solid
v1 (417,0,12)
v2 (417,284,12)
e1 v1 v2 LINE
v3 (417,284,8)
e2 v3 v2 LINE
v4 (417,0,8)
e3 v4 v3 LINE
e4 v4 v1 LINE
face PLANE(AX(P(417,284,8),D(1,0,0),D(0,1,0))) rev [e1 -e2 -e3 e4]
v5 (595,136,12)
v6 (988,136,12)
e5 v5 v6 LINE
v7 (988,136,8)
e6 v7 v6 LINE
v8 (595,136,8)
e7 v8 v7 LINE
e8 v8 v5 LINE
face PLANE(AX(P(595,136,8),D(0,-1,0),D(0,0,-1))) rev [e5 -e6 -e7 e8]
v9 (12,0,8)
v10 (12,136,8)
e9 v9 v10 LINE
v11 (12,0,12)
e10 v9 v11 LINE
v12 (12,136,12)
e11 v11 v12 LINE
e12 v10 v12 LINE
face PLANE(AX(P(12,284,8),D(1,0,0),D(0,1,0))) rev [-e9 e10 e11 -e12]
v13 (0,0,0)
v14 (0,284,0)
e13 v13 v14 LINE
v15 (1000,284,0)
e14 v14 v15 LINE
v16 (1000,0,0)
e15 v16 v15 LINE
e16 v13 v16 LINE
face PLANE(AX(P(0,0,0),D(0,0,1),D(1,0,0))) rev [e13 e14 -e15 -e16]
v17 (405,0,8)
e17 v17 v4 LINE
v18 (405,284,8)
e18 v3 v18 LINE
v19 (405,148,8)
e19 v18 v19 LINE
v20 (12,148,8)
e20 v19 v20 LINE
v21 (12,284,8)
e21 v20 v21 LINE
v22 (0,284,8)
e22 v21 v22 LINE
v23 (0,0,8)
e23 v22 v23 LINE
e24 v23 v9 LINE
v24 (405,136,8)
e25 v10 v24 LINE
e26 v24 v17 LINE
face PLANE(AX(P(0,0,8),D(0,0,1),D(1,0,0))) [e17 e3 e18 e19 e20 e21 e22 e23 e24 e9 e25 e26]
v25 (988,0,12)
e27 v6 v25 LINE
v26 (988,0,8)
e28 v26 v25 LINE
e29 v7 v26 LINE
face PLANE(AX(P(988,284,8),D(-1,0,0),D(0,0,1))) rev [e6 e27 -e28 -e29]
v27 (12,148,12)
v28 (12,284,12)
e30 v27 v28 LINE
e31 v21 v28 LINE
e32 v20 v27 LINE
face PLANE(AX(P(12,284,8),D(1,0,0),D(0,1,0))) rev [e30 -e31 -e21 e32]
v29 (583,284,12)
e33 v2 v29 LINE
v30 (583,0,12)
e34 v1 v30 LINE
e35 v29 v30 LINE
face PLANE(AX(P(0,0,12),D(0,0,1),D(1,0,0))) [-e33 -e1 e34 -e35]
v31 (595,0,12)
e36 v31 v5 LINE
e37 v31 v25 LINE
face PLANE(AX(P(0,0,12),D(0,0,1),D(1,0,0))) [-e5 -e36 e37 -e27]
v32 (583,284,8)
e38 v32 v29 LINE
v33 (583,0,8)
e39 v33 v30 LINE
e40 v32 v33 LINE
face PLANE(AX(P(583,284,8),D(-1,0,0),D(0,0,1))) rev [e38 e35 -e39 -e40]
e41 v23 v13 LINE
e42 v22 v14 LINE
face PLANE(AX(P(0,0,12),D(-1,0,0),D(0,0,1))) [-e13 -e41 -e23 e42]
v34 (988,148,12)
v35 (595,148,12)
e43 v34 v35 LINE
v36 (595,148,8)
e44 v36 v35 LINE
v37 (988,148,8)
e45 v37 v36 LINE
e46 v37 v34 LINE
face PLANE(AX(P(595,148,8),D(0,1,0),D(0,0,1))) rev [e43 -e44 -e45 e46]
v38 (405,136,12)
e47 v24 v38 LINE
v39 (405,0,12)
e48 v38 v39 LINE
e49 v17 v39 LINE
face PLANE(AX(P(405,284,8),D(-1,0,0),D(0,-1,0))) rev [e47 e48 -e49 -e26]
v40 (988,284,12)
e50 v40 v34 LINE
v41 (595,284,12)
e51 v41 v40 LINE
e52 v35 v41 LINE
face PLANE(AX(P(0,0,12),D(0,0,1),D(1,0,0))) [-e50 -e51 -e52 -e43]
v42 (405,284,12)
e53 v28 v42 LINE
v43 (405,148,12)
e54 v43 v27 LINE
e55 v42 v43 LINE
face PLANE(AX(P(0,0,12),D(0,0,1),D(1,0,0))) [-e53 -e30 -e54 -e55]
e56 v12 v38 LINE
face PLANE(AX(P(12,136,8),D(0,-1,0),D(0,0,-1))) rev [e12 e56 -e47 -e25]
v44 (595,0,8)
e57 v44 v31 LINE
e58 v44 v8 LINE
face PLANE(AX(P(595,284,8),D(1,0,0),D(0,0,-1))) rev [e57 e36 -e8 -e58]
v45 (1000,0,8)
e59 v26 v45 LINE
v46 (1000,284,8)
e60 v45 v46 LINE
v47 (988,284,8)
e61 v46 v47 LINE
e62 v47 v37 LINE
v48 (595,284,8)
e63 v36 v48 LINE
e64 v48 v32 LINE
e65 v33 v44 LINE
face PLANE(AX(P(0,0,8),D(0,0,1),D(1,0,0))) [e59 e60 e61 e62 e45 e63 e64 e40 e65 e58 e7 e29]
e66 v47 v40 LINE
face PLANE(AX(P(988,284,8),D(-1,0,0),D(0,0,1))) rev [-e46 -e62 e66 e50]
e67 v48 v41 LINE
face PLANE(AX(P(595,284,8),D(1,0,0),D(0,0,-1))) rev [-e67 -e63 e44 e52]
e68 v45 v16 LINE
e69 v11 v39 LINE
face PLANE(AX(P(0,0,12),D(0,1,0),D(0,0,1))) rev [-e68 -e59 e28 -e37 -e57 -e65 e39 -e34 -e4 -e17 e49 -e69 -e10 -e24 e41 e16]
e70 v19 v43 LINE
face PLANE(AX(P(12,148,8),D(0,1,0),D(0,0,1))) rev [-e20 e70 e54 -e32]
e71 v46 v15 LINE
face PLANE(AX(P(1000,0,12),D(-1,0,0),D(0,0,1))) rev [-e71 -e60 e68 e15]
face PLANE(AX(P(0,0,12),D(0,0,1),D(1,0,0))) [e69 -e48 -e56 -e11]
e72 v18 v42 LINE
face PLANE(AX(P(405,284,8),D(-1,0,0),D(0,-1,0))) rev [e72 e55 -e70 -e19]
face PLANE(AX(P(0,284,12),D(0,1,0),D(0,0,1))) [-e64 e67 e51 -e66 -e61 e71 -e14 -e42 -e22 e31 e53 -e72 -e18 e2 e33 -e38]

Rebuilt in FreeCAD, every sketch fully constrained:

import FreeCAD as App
import Part
import Sketcher
from FreeCAD import Vector
Q = App.Units.Quantity


def add_polygon(sketch, points):
    """Adds a closed chain of lines whose ends are joined by coincident constraints."""
    first, n = sketch.GeometryCount, len(points)
    for a, b in zip(points, points[1:] + points[:1]):
        sketch.addGeometry(Part.LineSegment(App.Vector(*a, 0), App.Vector(*b, 0)), False)
    for i in range(n):
        sketch.addConstraint(Sketcher.Constraint("Coincident", first + i, 2, first + (i + 1) % n, 1))

doc = App.newDocument("Part")
body = doc.addObject("PartDesign::Body", "Body")

# Sketch on XY plane
sketch1 = body.newObject("Sketcher::SketchObject", "Sketch")
sketch1.AttachmentSupport = (doc.getObject("XY_Plane"), [""])
sketch1.MapMode = "FlatFace"
add_polygon(sketch1, [(0, 284), (0, 0), (1000, 0), (1000, 284)])  # lines 0-3
sketch1.addConstraint([
    Sketcher.Constraint("Vertical", 0),
    Sketcher.Constraint("Horizontal", 1),
    Sketcher.Constraint("Vertical", 2),
    Sketcher.Constraint("Horizontal", 3),
    Sketcher.Constraint("Coincident", 0, 2, -1, 1),
    Sketcher.Constraint("DistanceX", 1, 1, 1, 2, Q("1000 mm")),
    Sketcher.Constraint("DistanceY", 0, 2, 0, 1, Q("284 mm")),
])
pad1 = body.newObject("PartDesign::Pad", "Pad")
pad1.Profile = sketch1
pad1.Length = 12

# Sketch on XY plane
sketch2 = body.newObject("Sketcher::SketchObject", "Sketch001")
sketch2.AttachmentSupport = (doc.getObject("XY_Plane"), [""])
sketch2.MapMode = "FlatFace"
sketch2.AttachmentOffset = App.Placement(Vector(0, 0, 12), App.Rotation())
add_polygon(sketch2, [(0, 284), (0, 0), (12, 0), (12, 284)])  # lines 0-3
add_polygon(sketch2, [(988, 284), (988, 0), (1000, 0), (1000, 284)])  # lines 4-7
add_polygon(sketch2, [(405, 284), (405, 0), (417, 0), (417, 284)])  # lines 8-11
add_polygon(sketch2, [(583, 284), (583, 0), (595, 0), (595, 284)])  # lines 12-15
sketch2.addConstraint([
    Sketcher.Constraint("Vertical", 0),
    Sketcher.Constraint("Horizontal", 1),
    Sketcher.Constraint("Vertical", 2),
    Sketcher.Constraint("Horizontal", 3),
    Sketcher.Constraint("Vertical", 4),
    Sketcher.Constraint("Horizontal", 5),
    Sketcher.Constraint("Vertical", 6),
    Sketcher.Constraint("Horizontal", 7),
    Sketcher.Constraint("Vertical", 8),
    Sketcher.Constraint("Horizontal", 9),
    Sketcher.Constraint("Vertical", 10),
    Sketcher.Constraint("Horizontal", 11),
    Sketcher.Constraint("Vertical", 12),
    Sketcher.Constraint("Horizontal", 13),
    Sketcher.Constraint("Vertical", 14),
    Sketcher.Constraint("Horizontal", 15),
    Sketcher.Constraint("Coincident", 0, 2, -1, 1),
    Sketcher.Constraint("PointOnObject", 4, 2, -1),
    Sketcher.Constraint("PointOnObject", 8, 2, -1),
    Sketcher.Constraint("PointOnObject", 12, 2, -1),
    Sketcher.Constraint("Horizontal", 3, 2, 6, 2),
    Sketcher.Constraint("Horizontal", 7, 2, 10, 2),
    Sketcher.Constraint("Horizontal", 11, 2, 14, 2),
    Sketcher.Constraint("Equal", 3, 5),
    Sketcher.Constraint("Equal", 7, 9),
    Sketcher.Constraint("Equal", 11, 13),
    Sketcher.Constraint("DistanceX", 1, 1, 1, 2, Q("12 mm")),
    Sketcher.Constraint("DistanceY", 0, 2, 0, 1, Q("284 mm")),
    Sketcher.Constraint("DistanceX", -1, 1, 4, 2, Q("988 mm")),
    Sketcher.Constraint("DistanceX", -1, 1, 8, 2, Q("405 mm")),
    Sketcher.Constraint("DistanceX", -1, 1, 12, 2, Q("583 mm")),
])
pocket1 = body.newObject("PartDesign::Pocket", "Pocket")
pocket1.Profile = sketch2
pocket1.Length = 4

# Sketch on XY plane
sketch3 = body.newObject("Sketcher::SketchObject", "Sketch002")
sketch3.AttachmentSupport = (doc.getObject("XY_Plane"), [""])
sketch3.MapMode = "FlatFace"
sketch3.AttachmentOffset = App.Placement(Vector(0, 0, 12), App.Rotation())
add_polygon(sketch3, [(12, 148), (12, 136), (405, 136), (405, 148)])  # lines 0-3
add_polygon(sketch3, [(595, 148), (595, 136), (988, 136), (988, 148)])  # lines 4-7
sketch3.addConstraint([
    Sketcher.Constraint("Vertical", 0),
    Sketcher.Constraint("Horizontal", 1),
    Sketcher.Constraint("Vertical", 2),
    Sketcher.Constraint("Horizontal", 3),
    Sketcher.Constraint("Vertical", 4),
    Sketcher.Constraint("Horizontal", 5),
    Sketcher.Constraint("Vertical", 6),
    Sketcher.Constraint("Horizontal", 7),
    Sketcher.Constraint("Horizontal", 1, 2, 4, 2),
    Sketcher.Constraint("Horizontal", 3, 2, 6, 2),
    Sketcher.Constraint("Equal", 3, 5),
    Sketcher.Constraint("DistanceX", 1, 1, 1, 2, Q("393 mm")),
    Sketcher.Constraint("DistanceY", 0, 2, 0, 1, Q("12 mm")),
    Sketcher.Constraint("DistanceX", -1, 1, 0, 2, Q("12 mm")),
    Sketcher.Constraint("DistanceY", -1, 1, 0, 2, Q("136 mm")),
    Sketcher.Constraint("DistanceX", -1, 1, 4, 2, Q("595 mm")),
])
pocket2 = body.newObject("PartDesign::Pocket", "Pocket001")
pocket2.Profile = sketch3
pocket2.Length = 4

doc.recompute()
